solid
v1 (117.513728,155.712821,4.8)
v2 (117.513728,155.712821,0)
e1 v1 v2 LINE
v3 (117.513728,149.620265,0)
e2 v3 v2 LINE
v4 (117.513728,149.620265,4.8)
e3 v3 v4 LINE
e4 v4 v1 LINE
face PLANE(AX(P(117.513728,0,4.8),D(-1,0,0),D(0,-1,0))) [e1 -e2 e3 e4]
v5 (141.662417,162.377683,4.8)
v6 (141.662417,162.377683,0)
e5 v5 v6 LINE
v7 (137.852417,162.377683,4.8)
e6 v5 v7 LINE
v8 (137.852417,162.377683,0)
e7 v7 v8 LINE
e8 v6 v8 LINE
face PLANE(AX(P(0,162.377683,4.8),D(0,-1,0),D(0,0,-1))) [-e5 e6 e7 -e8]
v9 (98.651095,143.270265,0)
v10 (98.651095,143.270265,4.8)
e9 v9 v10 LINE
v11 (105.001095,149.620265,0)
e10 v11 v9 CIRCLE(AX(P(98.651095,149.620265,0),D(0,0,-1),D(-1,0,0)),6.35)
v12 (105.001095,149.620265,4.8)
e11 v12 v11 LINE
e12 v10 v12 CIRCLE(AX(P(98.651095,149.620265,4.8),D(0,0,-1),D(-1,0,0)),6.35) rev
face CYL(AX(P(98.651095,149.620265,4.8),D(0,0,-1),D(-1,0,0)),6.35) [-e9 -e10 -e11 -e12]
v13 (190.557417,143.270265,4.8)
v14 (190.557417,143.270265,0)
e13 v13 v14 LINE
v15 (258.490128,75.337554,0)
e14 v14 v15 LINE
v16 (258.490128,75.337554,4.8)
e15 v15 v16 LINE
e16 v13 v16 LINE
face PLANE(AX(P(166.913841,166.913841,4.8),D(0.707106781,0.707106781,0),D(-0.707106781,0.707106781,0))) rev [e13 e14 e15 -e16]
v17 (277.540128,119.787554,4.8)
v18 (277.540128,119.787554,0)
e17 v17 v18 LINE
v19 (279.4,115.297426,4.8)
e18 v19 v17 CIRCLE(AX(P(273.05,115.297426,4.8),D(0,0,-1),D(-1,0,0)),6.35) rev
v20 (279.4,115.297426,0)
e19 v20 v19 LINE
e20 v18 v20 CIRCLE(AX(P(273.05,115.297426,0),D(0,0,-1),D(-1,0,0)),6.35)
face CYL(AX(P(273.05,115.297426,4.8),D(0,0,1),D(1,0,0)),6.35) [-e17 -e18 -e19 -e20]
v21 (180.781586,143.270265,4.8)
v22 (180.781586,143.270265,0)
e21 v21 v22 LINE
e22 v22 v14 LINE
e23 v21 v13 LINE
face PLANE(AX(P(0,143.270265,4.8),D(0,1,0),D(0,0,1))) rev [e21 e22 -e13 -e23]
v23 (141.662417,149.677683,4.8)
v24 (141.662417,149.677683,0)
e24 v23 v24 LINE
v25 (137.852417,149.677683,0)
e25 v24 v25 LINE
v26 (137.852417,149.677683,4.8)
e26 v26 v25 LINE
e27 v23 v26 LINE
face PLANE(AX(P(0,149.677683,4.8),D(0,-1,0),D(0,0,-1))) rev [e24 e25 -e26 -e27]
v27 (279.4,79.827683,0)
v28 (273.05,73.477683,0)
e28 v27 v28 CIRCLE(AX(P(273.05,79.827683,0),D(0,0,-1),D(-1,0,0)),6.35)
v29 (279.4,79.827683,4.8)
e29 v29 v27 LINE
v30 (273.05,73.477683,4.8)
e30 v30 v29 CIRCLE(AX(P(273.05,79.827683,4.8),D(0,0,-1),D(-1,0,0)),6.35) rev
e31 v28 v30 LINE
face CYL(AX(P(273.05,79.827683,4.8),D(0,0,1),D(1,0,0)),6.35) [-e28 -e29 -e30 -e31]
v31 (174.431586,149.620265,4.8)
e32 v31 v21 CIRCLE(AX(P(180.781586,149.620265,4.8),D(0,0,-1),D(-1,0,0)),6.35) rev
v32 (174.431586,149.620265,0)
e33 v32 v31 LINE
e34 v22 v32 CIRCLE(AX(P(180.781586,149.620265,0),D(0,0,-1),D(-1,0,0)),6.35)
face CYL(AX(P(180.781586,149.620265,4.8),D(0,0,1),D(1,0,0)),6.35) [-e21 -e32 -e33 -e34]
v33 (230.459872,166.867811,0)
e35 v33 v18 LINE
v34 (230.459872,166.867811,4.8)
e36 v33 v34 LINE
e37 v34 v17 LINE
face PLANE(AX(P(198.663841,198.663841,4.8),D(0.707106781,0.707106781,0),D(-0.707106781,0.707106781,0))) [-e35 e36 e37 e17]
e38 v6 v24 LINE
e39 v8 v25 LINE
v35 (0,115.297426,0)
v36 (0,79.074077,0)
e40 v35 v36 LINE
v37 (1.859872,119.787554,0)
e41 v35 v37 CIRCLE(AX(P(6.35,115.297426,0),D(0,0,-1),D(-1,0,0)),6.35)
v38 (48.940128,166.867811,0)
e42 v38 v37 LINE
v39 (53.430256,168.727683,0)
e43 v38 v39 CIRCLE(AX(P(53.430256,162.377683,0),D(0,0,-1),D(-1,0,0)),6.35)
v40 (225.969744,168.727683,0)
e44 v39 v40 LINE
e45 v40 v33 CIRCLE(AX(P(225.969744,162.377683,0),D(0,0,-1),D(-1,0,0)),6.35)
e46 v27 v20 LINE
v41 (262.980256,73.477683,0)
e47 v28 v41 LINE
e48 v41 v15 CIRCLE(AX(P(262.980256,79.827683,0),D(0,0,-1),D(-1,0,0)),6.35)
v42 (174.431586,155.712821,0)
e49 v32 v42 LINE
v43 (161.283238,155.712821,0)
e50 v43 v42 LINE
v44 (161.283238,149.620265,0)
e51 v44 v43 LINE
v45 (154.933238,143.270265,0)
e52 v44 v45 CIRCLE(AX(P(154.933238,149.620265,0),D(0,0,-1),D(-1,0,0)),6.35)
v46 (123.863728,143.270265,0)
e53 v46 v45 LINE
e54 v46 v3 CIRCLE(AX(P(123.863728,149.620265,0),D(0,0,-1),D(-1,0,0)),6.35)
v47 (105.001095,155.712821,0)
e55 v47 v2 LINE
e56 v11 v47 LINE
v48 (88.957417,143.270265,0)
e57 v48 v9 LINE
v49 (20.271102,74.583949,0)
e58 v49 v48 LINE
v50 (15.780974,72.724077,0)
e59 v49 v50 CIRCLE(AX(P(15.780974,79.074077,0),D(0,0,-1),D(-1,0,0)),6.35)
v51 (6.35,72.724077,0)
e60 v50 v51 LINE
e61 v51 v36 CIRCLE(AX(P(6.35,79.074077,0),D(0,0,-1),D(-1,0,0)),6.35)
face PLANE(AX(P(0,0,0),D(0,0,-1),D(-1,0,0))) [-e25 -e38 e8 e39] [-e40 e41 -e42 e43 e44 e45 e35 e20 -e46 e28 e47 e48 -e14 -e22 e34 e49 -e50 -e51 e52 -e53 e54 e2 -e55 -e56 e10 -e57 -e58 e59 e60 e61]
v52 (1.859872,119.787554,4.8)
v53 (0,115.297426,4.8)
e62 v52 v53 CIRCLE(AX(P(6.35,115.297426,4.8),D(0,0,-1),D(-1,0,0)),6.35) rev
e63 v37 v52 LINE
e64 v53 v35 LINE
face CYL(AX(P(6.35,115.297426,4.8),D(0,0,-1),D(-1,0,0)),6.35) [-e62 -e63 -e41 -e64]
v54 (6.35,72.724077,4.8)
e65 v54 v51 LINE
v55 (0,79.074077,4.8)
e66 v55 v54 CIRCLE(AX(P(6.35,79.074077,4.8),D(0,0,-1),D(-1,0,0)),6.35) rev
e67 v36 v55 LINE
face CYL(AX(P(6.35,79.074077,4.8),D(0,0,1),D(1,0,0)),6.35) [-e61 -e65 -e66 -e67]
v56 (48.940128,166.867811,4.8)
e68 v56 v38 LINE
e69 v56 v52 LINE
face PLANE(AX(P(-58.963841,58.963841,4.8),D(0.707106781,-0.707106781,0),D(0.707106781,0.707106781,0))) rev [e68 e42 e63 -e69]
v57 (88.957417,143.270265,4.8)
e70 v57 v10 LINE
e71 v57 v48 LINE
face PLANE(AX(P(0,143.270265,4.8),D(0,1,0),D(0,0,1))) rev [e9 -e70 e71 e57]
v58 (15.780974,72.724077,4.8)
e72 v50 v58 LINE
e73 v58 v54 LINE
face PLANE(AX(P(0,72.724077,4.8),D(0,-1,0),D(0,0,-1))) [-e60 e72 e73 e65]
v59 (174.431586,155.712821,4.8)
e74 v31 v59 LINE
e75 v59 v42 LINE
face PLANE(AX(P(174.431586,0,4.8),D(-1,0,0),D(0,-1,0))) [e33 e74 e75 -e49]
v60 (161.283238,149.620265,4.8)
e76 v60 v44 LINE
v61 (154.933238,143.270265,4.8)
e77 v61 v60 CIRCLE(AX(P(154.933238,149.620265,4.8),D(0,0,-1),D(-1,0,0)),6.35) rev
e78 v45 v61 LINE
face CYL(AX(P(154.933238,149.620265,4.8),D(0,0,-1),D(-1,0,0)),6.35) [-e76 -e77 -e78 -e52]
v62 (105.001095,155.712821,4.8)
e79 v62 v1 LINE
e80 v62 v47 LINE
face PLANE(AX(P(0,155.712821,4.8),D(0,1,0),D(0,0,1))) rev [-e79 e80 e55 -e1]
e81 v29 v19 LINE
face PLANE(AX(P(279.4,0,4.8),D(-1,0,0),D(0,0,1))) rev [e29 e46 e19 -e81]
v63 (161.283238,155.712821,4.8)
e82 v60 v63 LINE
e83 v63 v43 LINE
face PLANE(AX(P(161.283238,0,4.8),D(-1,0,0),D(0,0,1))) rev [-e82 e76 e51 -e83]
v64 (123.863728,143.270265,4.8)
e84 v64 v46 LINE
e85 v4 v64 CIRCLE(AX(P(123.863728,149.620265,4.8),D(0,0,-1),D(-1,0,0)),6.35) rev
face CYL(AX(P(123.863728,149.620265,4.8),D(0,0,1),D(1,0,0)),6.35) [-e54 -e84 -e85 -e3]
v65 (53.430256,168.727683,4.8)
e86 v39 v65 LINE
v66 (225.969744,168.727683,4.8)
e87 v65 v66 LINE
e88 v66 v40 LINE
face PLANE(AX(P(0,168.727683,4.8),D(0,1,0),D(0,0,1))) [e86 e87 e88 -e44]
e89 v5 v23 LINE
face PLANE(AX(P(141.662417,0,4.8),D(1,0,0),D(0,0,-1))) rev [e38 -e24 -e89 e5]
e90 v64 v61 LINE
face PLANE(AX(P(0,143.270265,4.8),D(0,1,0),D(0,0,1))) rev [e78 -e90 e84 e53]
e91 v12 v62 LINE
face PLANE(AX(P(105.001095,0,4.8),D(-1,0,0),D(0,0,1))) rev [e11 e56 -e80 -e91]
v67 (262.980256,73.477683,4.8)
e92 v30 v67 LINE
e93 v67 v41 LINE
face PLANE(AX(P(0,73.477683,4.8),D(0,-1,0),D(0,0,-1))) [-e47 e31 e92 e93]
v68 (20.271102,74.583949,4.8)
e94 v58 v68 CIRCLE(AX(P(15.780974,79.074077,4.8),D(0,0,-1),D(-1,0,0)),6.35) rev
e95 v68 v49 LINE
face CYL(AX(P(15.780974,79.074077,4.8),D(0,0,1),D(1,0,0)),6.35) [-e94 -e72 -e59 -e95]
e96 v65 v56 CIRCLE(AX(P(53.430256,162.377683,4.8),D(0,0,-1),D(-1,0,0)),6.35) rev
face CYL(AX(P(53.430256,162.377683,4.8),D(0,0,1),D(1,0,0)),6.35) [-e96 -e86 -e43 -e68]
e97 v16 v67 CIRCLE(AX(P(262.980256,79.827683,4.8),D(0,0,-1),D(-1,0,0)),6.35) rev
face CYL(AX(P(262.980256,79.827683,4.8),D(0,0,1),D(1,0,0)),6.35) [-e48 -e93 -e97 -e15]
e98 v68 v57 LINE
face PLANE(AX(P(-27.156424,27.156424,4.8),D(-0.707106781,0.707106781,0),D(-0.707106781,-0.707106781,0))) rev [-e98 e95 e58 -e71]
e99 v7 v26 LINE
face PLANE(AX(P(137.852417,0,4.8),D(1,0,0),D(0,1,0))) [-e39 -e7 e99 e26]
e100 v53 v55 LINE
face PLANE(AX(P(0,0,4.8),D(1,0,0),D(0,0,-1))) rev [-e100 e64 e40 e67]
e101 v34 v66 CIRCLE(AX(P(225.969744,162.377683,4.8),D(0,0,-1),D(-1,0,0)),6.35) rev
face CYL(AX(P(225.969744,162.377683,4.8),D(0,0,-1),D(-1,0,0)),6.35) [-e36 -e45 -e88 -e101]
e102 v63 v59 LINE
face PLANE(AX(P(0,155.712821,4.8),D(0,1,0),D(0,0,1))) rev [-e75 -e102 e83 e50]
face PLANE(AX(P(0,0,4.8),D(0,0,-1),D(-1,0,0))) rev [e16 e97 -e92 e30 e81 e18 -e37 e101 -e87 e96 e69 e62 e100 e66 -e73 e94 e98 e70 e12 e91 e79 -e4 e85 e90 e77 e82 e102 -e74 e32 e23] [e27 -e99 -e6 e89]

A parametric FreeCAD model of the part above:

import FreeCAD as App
import Part
import Sketcher
Q = App.Units.Quantity


def edges_at(feature, points):
    """Names of the edges that pass closest to the given points."""
    edges = feature.Shape.Edges
    near = lambda p: min(range(len(edges)), key=lambda i: edges[i].distToShape(Part.Vertex(*p))[0])
    return sorted({f"Edge{near(p) + 1}" for p in points})


def add_polygon(sketch, points):
    """Adds a closed chain of lines whose ends are joined by coincident constraints."""
    first, n = sketch.GeometryCount, len(points)
    for a, b in zip(points, points[1:] + points[:1]):
        sketch.addGeometry(Part.LineSegment(App.Vector(*a, 0), App.Vector(*b, 0)), False)
    for i in range(n):
        sketch.addConstraint(Sketcher.Constraint("Coincident", first + i, 2, first + (i + 1) % n, 1))

doc = App.newDocument("Part")
body = doc.addObject("PartDesign::Body", "Body")

sketch1 = body.newObject("Sketcher::SketchObject", "Sketch")
sketch1.AttachmentSupport = (doc.getObject("XY_Plane"), [""])
sketch1.MapMode = "FlatFace"
add_polygon(sketch1, [(0, 254), (0, 0), (279, 0), (279, 254)])
sketch1.addConstraint([
    Sketcher.Constraint("Vertical", 0),
    Sketcher.Constraint("Horizontal", 1),
    Sketcher.Constraint("Vertical", 2),
    Sketcher.Constraint("Horizontal", 3),
    Sketcher.Constraint("Coincident", 0, 2, -1, 1),
    Sketcher.Constraint("DistanceX", 1, 1, 1, 2, Q("11 in")),
    Sketcher.Constraint("DistanceY", 0, 2, 0, 1, Q("10 in")),
])
pad1 = body.newObject("PartDesign::Pad", "Pad")
pad1.Profile = sketch1
pad1.Length = 4.8

sketch2 = body.newObject("Sketcher::SketchObject", "Sketch001")
sketch2.AttachmentSupport = (doc.getObject("XY_Plane"), [""])
sketch2.MapMode = "FlatFace"
add_polygon(sketch2, [(0, 0), (0, 72.7), (18.4, 72.7), (89, 143.3), (105, 143.3), (105, 155.7), (117.5, 155.7), (117.5, 143.3), (161.3, 143.3), (161.3, 155.7), (174.4, 155.7), (174.4, 143.3), (190.6, 143.3), (260.4, 73.5), (279.4, 73.5), (279.4, 0)])
add_polygon(sketch2, [(50.8, 168.7), (0, 117.9), (0, 254), (279.4, 254), (279.4, 117.9), (228.6, 168.7)])
add_polygon(sketch2, [(141.7, 162.4), (141.7, 149.7), (137.9, 149.7), (137.9, 162.4)])
sketch2.addConstraint([
    Sketcher.Constraint("Vertical", 0),
    Sketcher.Constraint("Horizontal", 1),
    Sketcher.Constraint("Horizontal", 3),
    Sketcher.Constraint("Vertical", 4),
    Sketcher.Constraint("Horizontal", 5),
    Sketcher.Constraint("Vertical", 6),
    Sketcher.Constraint("Horizontal", 7),
    Sketcher.Constraint("Vertical", 8),
    Sketcher.Constraint("Horizontal", 9),
    Sketcher.Constraint("Vertical", 10),
    Sketcher.Constraint("Horizontal", 11),
    Sketcher.Constraint("Horizontal", 13),
    Sketcher.Constraint("Vertical", 14),
    Sketcher.Constraint("Horizontal", 15),
    Sketcher.Constraint("Vertical", 17),
    Sketcher.Constraint("Horizontal", 18),
    Sketcher.Constraint("Vertical", 19),
    Sketcher.Constraint("Horizontal", 21),
    Sketcher.Constraint("Vertical", 22),
    Sketcher.Constraint("Horizontal", 23),
    Sketcher.Constraint("Vertical", 24),
    Sketcher.Constraint("Horizontal", 25),
    Sketcher.Constraint("Coincident", 15, 2, -1, 1),
    Sketcher.Constraint("PointOnObject", 16, 2, -2),
    Sketcher.Constraint("Perpendicular", 2, 12),
    Sketcher.Constraint("Perpendicular", 12, 16),
    Sketcher.Constraint("Perpendicular", 16, 20),
    Sketcher.Constraint("Horizontal", 3, 2, 6, 2),
    Sketcher.Constraint("Horizontal", 5, 2, 8, 2),
    Sketcher.Constraint("Horizontal", 7, 2, 10, 2),
    Sketcher.Constraint("Horizontal", 16, 2, 19, 2),
    Sketcher.Constraint("Vertical", 14, 2, 18, 2),
    Sketcher.Constraint("Equal", 16, 20),
    Sketcher.Constraint("DistanceX", 15, 2, 15, 1, Q("11 in")),
    Sketcher.Constraint("DistanceX", 21, 2, 21, 1, Q("7 in")),
    Sketcher.Constraint("DistanceY", 22, 2, 22, 1, Q("0.5 in")),
    Sketcher.Constraint("DistanceY", -1, 1, 17, 2, Q("10 in")),
    Sketcher.Constraint("DistanceX", 13, 1, 13, 2, Q("0.75 in")),
    Sketcher.Constraint("DistanceX", 23, 2, 23, 1, Q("0.15 in")),
    Sketcher.Constraint("DistanceY", 13, 2, 19, 2, Q("1.75 in")),
    Sketcher.Constraint("DistanceX", 1, 1, 1, 2, 18.41123),
    Sketcher.Constraint("DistanceX", 7, 1, 7, 2, 43.769509),
    Sketcher.Constraint("DistanceX", 11, 1, 11, 2, 16.125832),
    Sketcher.Constraint("DistanceX", 1, 2, 5, 2, 99.102499),
    Sketcher.Constraint("DistanceX", 3, 1, 3, 2, 16.043677),
    Sketcher.Constraint("DistanceX", 5, 1, 5, 2, 12.512633),
    Sketcher.Constraint("DistanceX", 9, 1, 9, 2, 13.148348),
    Sketcher.Constraint("DistanceY", 0, 1, 0, 2, 72.724077),
    Sketcher.Constraint("DistanceY", 4, 1, 4, 2, 12.442556),
    Sketcher.Constraint("DistanceX", 22, 2, 8, 2, 19.62082),
    Sketcher.Constraint("DistanceY", 22, 2, 8, 2, 6.035138),
])
pocket1 = body.newObject("PartDesign::Pocket", "Pocket")
pocket1.Profile = sketch2
pocket1.Type = "ThroughAll"
pocket1.Reversed = True
doc.recompute()

fillet = body.newObject("PartDesign::Fillet", "Fillet")
fillet.Base = (pocket1, edges_at(pocket1, [
    (18.411, 72.724, 2.4),
    (0, 72.724, 2.4),
    (279.4, 73.478, 2.4),
    (260.35, 73.478, 2.4),
    (174.432, 143.27, 2.4),
    (161.283, 143.27, 2.4),
    (117.514, 143.27, 2.4),
    (105.001, 143.27, 2.4),
    (228.6, 168.728, 2.4),
    (279.4, 117.928, 2.4),
    (0, 117.928, 2.4),
    (50.8, 168.728, 2.4),
]))
fillet.Radius = Q("0.25 in")

doc.recompute()
